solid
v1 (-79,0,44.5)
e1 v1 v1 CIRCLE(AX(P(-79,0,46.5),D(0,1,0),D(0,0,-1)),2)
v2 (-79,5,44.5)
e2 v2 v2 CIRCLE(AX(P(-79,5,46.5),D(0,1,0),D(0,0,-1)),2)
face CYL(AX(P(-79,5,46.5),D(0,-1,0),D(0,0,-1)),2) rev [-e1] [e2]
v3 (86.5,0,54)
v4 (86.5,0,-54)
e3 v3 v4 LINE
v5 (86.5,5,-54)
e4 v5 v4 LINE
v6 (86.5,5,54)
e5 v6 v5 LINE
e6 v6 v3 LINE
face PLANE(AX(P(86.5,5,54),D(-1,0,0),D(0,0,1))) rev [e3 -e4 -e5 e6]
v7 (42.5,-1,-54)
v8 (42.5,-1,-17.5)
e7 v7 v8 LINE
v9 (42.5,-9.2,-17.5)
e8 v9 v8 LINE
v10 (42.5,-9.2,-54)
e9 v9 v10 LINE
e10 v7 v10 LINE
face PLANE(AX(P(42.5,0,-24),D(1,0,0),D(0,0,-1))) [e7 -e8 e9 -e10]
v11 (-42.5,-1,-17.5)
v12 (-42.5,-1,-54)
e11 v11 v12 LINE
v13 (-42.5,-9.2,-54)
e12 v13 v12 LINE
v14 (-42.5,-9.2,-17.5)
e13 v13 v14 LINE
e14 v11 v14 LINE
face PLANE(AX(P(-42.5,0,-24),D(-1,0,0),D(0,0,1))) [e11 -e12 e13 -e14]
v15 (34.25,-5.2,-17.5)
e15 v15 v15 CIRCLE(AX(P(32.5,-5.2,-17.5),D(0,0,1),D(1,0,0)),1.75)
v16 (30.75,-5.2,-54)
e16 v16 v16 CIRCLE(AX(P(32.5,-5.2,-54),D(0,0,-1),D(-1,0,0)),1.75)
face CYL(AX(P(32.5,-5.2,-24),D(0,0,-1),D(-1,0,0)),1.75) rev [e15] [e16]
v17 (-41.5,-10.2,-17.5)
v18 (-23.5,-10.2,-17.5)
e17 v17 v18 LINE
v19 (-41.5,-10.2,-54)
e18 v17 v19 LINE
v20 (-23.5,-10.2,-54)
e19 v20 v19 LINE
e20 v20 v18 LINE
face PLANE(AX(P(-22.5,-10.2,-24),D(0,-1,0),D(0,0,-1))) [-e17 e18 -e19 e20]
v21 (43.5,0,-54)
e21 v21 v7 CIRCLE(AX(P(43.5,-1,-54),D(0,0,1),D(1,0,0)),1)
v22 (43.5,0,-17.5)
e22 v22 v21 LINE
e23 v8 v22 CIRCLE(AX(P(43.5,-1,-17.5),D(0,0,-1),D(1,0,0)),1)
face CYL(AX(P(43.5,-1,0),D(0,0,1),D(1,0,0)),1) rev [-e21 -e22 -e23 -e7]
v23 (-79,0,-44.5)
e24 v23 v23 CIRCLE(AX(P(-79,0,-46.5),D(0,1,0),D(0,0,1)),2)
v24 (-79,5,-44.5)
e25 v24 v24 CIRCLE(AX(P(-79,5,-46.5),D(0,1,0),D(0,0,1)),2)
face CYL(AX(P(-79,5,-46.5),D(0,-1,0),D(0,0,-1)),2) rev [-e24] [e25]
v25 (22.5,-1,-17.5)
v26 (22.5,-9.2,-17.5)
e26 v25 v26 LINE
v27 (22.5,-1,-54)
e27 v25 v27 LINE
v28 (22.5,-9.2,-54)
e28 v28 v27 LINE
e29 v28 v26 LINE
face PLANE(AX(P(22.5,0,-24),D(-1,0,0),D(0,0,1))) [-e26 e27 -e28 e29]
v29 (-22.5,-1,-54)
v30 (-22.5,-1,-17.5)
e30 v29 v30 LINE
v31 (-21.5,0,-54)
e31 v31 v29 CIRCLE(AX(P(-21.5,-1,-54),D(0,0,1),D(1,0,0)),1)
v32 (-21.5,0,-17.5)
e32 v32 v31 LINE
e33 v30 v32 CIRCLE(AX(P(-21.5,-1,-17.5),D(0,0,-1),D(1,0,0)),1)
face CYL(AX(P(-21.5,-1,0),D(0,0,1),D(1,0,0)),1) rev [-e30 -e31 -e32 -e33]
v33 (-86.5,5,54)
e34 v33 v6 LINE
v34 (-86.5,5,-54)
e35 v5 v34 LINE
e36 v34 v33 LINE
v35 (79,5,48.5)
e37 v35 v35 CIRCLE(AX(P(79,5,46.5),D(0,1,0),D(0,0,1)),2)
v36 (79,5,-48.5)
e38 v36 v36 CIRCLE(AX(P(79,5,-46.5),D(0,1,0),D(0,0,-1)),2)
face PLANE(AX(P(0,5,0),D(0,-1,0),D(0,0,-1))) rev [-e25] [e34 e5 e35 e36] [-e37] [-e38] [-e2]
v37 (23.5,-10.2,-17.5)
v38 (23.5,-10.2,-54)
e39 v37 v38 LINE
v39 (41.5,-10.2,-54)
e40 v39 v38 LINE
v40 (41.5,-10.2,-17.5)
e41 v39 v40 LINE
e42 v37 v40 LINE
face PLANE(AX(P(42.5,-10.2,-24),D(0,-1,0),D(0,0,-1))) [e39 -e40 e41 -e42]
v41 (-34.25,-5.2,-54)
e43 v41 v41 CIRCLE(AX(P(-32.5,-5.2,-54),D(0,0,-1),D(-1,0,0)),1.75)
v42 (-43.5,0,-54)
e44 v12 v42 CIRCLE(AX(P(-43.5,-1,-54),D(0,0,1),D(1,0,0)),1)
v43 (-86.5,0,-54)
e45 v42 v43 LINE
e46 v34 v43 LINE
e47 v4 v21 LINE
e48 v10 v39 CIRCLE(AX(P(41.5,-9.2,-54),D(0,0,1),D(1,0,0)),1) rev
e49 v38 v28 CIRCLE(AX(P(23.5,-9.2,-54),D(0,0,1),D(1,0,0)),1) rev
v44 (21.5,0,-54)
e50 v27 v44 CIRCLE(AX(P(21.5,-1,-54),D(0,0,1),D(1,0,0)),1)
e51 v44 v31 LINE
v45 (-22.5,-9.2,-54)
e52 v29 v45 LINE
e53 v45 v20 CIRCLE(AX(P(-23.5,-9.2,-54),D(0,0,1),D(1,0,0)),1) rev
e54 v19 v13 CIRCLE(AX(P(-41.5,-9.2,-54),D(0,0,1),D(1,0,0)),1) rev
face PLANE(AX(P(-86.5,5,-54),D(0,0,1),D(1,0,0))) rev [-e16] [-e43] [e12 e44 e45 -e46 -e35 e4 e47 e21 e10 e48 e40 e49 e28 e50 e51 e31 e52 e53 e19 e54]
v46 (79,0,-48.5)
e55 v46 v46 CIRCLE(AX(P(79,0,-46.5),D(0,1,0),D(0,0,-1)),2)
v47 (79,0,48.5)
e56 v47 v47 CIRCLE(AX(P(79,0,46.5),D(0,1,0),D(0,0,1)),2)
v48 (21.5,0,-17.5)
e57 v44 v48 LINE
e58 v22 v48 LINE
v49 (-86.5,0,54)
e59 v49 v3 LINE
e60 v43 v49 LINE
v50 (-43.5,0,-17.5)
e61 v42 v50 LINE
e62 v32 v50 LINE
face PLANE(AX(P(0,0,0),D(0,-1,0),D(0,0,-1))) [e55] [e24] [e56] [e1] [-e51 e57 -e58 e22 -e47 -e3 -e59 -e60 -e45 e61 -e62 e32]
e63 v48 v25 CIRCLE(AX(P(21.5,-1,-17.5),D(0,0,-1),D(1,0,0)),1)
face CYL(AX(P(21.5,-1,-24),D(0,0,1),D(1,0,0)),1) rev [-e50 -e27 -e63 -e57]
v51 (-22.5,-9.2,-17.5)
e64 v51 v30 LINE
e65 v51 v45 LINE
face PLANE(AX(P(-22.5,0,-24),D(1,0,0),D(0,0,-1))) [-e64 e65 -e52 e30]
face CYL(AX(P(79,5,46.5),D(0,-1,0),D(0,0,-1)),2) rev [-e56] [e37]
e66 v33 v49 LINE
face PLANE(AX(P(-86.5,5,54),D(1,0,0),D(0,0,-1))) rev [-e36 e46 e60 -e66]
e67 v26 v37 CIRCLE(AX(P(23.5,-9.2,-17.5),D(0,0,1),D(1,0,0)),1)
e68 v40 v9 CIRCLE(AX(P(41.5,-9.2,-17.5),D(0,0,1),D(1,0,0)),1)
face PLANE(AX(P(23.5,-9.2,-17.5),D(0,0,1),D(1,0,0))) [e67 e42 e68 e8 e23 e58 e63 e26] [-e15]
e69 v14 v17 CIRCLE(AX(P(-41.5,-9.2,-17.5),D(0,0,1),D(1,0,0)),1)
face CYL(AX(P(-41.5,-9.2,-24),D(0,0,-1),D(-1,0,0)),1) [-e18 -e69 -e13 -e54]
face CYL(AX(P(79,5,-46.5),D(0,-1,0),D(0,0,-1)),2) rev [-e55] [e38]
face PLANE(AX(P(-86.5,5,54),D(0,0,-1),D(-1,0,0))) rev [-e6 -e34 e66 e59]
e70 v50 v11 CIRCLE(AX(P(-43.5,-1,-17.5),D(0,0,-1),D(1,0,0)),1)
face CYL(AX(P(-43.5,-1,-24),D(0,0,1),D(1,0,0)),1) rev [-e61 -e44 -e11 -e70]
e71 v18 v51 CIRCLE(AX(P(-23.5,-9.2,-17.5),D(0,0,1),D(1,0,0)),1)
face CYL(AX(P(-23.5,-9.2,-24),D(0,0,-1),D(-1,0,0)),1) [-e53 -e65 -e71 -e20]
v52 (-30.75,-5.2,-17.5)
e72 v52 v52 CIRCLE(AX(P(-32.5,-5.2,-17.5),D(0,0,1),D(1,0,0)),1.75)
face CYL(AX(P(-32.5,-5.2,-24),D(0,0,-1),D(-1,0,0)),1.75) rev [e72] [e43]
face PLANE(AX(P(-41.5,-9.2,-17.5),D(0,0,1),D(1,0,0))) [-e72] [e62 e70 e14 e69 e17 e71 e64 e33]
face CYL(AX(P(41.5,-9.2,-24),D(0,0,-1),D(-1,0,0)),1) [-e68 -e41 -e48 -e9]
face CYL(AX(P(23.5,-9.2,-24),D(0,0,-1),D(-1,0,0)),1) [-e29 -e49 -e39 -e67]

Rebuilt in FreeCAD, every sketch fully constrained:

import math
import FreeCAD as App
import Part
import Sketcher

V = App.Vector


def edges_at(feature, points):
    """Names of the edges that pass closest to the given points."""
    edges = feature.Shape.Edges
    near = lambda p: min(range(len(edges)), key=lambda i: edges[i].distToShape(Part.Vertex(*p))[0])
    return sorted({f"Edge{near(p) + 1}" for p in points})

doc = App.newDocument("Part")
body = doc.addObject("PartDesign::Body", "Body")

sketch1 = doc.addObject("Sketcher::SketchObject", "Sketch")
body.addObject(sketch1)
sketch1.AttachmentSupport = (doc.XZ_Plane, [""])
sketch1.MapMode = "FlatFace"
sketch1.addGeometry([
    Part.LineSegment(V(-86.5, -54, 0), V(-86.5, 54, 0)),
    Part.LineSegment(V(-86.5, 54, 0), V(86.5, 54, 0)),
    Part.LineSegment(V(86.5, 54, 0), V(86.5, -54, 0)),
    Part.LineSegment(V(86.5, -54, 0), V(-86.5, -54, 0)),
    Part.Circle(V(-79, 46.5, 0), V(0, 0, 1), 2),
    Part.Circle(V(79, 46.5, 0), V(0, 0, 1), 2),
    Part.Circle(V(-79, -46.5, 0), V(0, 0, 1), 2),
    Part.Circle(V(79, -46.5, 0), V(0, 0, 1), 2),
], False)
sketch1.addConstraint([
    Sketcher.Constraint("Coincident", 0, 2, 1, 1),
    Sketcher.Constraint("Coincident", 1, 2, 2, 1),
    Sketcher.Constraint("Coincident", 2, 2, 3, 1),
    Sketcher.Constraint("Coincident", 3, 2, 0, 1),
    Sketcher.Constraint("Vertical", 0),
    Sketcher.Constraint("Horizontal", 1),
    Sketcher.Constraint("Vertical", 2),
    Sketcher.Constraint("Horizontal", 3),
    Sketcher.Constraint("Equal", 4, 5),
    Sketcher.Constraint("Equal", 5, 6),
    Sketcher.Constraint("Equal", 6, 7),
    Sketcher.Constraint("Symmetric", 5, 3, 6, 3, -1, 1),
    Sketcher.Constraint("Symmetric", 4, 3, 7, 3, -1, 1),
    Sketcher.Constraint("Symmetric", 0, 2, 2, 2, -1, 1),
    Sketcher.Constraint("Symmetric", 4, 3, 5, 3, -2),
    Sketcher.Constraint("Diameter", 4, 4.0),
    Sketcher.Constraint("DistanceX", 1, 1, 1, 2, 173.0),
    Sketcher.Constraint("DistanceY", 0, 1, 0, 2, 108.0),
    Sketcher.Constraint("DistanceX", 4, 3, -1, 1, 79.0),
    Sketcher.Constraint("DistanceY", 6, 3, 4, 3, 93.0),
])
pad1 = doc.addObject("PartDesign::Pad", "Pad")
body.addObject(pad1)
pad1.Profile = sketch1
pad1.Length = 5
pad1.Reversed = True

sketch2 = doc.addObject("Sketcher::SketchObject", "Sketch001")
body.addObject(sketch2)
sketch2.AttachmentSupport = (doc.XY_Plane, [""])
sketch2.MapMode = "FlatFace"
sketch2.AttachmentOffset = App.Placement(V(0, 0, -54), App.Rotation())
sketch2.addGeometry([
    Part.LineSegment(V(42.5, 0, 0), V(42.5, -10.2, 0)),
    Part.LineSegment(V(42.5, -10.2, 0), V(22.5, -10.2, 0)),
    Part.LineSegment(V(22.5, -10.2, 0), V(22.5, 0, 0)),
    Part.LineSegment(V(22.5, 0, 0), V(42.5, 0, 0)),
    Part.Circle(V(32.5, -5.2, 0), V(0, 0, 1), 1.8),
    Part.LineSegment(V(-22.5, 0, 0), V(-22.5, -10.2, 0)),
    Part.LineSegment(V(-22.5, -10.2, 0), V(-42.5, -10.2, 0)),
    Part.LineSegment(V(-42.5, -10.2, 0), V(-42.5, 0, 0)),
    Part.LineSegment(V(-42.5, 0, 0), V(-22.5, 0, 0)),
    Part.Circle(V(-32.5, -5.2, 0), V(0, 0, 1), 1.8),
], False)
sketch2.addConstraint([
    Sketcher.Constraint("Coincident", 0, 2, 1, 1),
    Sketcher.Constraint("Coincident", 1, 2, 2, 1),
    Sketcher.Constraint("Coincident", 2, 2, 3, 1),
    Sketcher.Constraint("Coincident", 3, 2, 0, 1),
    Sketcher.Constraint("Coincident", 5, 2, 6, 1),
    Sketcher.Constraint("Coincident", 6, 2, 7, 1),
    Sketcher.Constraint("Coincident", 7, 2, 8, 1),
    Sketcher.Constraint("Coincident", 8, 2, 5, 1),
    Sketcher.Constraint("Vertical", 0),
    Sketcher.Constraint("Horizontal", 1),
    Sketcher.Constraint("Vertical", 2),
    Sketcher.Constraint("Horizontal", 3),
    Sketcher.Constraint("Vertical", 5),
    Sketcher.Constraint("Horizontal", 6),
    Sketcher.Constraint("Vertical", 7),
    Sketcher.Constraint("Horizontal", 8),
    Sketcher.Constraint("Equal", 4, 9),
    Sketcher.Constraint("Symmetric", 3, 2, 7, 2, -1, 1),
    Sketcher.Constraint("Symmetric", 4, 3, 9, 3, -2),
    Sketcher.Constraint("Symmetric", 1, 2, 5, 2, -2),
    Sketcher.Constraint("PointOnObject", 2, 2, -1),
    Sketcher.Constraint("Diameter", 4, 3.5),
    Sketcher.Constraint("DistanceX", 1, 2, 1, 1, 20.0),
    Sketcher.Constraint("DistanceY", 0, 2, 0, 1, 10.2),
    Sketcher.Constraint("DistanceX", 9, 3, 4, 3, 65.0),
    Sketcher.Constraint("DistanceX", 4, 3, 0, 2, 10.0),
    Sketcher.Constraint("DistanceY", 0, 2, 4, 3, 5.0),
])
pad2 = doc.addObject("PartDesign::Pad", "Pad001")
body.addObject(pad2)
pad2.Profile = sketch2
pad2.Length = 30
doc.recompute()

fillet = doc.addObject("PartDesign::Fillet", "Fillet")
body.addObject(fillet)
fillet.Base = (pad2, edges_at(pad2, [
    (42.5, -10.2, -39),
    (42.5, 0, -39),
    (22.5, 0, -39),
    (22.5, -10.2, -39),
    (-22.5, -10.2, -39),
    (-22.5, 0, -39),
    (-42.5, 0, -39),
    (-42.5, -10.2, -39),
]))
fillet.Radius = 1

sketch3 = doc.addObject("Sketcher::SketchObject", "Sketch002")
body.addObject(sketch3)
sketch3.AttachmentSupport = (doc.XY_Plane, [""])
sketch3.MapMode = "FlatFace"
sketch3.AttachmentOffset = App.Placement(V(0, 0, -17.5), App.Rotation())
sketch3.addGeometry([
    Part.LineSegment(V(23.5, -10.2, 0), V(41.5, -10.2, 0)),
    Part.ArcOfCircle(Part.Circle(V(41.5, -9.2, 0), V(0, 0, 1), 1), math.radians(-90), math.radians(0)),
    Part.LineSegment(V(42.5, -9.2, 0), V(42.5, -1, 0)),
    Part.ArcOfCircle(Part.Circle(V(43.5, -1, 0), V(0, 0, 1), 1), math.radians(90), math.radians(180)),
    Part.LineSegment(V(43.5, 0, 0), V(21.5, 0, 0)),
    Part.ArcOfCircle(Part.Circle(V(21.5, -1, 0), V(0, 0, 1), 1), math.radians(0), math.radians(90)),
    Part.LineSegment(V(22.5, -1, 0), V(22.5, -9.2, 0)),
    Part.ArcOfCircle(Part.Circle(V(23.5, -9.2, 0), V(0, 0, 1), 1), math.radians(-180), math.radians(-90)),
    Part.Circle(V(32.5, -5.2, 0), V(0, 0, 1), 1.8),
    Part.LineSegment(V(-41.5, -10.2, 0), V(-23.5, -10.2, 0)),
    Part.ArcOfCircle(Part.Circle(V(-23.5, -9.2, 0), V(0, 0, 1), 1), math.radians(-90), math.radians(0)),
    Part.LineSegment(V(-22.5, -9.2, 0), V(-22.5, -1, 0)),
    Part.ArcOfCircle(Part.Circle(V(-21.5, -1, 0), V(0, 0, 1), 1), math.radians(90), math.radians(180)),
    Part.LineSegment(V(-21.5, 0, 0), V(-43.5, 0, 0)),
    Part.ArcOfCircle(Part.Circle(V(-43.5, -1, 0), V(0, 0, 1), 1), math.radians(0), math.radians(90)),
    Part.LineSegment(V(-42.5, -1, 0), V(-42.5, -9.2, 0)),
    Part.ArcOfCircle(Part.Circle(V(-41.5, -9.2, 0), V(0, 0, 1), 1), math.radians(-180), math.radians(-90)),
    Part.Circle(V(-32.5, -5.2, 0), V(0, 0, 1), 1.8),
], False)
sketch3.addConstraint([
    Sketcher.Constraint("Tangent", 0, 2, 1, 1),
    Sketcher.Constraint("Tangent", 1, 2, 2, 1),
    Sketcher.Constraint("Tangent", 2, 2, 3, 2),
    Sketcher.Constraint("Tangent", 3, 1, 4, 1),
    Sketcher.Constraint("Tangent", 4, 2, 5, 2),
    Sketcher.Constraint("Tangent", 5, 1, 6, 1),
    Sketcher.Constraint("Tangent", 6, 2, 7, 1),
    Sketcher.Constraint("Tangent", 7, 2, 0, 1),
    Sketcher.Constraint("Tangent", 9, 2, 10, 1),
    Sketcher.Constraint("Tangent", 10, 2, 11, 1),
    Sketcher.Constraint("Tangent", 11, 2, 12, 2),
    Sketcher.Constraint("Tangent", 12, 1, 13, 1),
    Sketcher.Constraint("Tangent", 13, 2, 14, 2),
    Sketcher.Constraint("Tangent", 14, 1, 15, 1),
    Sketcher.Constraint("Tangent", 15, 2, 16, 1),
    Sketcher.Constraint("Tangent", 16, 2, 9, 1),
    Sketcher.Constraint("Horizontal", 0),
    Sketcher.Constraint("Vertical", 2),
    Sketcher.Constraint("Horizontal", 4),
    Sketcher.Constraint("Vertical", 6),
    Sketcher.Constraint("Horizontal", 9),
    Sketcher.Constraint("Vertical", 11),
    Sketcher.Constraint("Horizontal", 13),
    Sketcher.Constraint("Vertical", 15),
    Sketcher.Constraint("Equal", 1, 3),
    Sketcher.Constraint("Equal", 3, 5),
    Sketcher.Constraint("Equal", 5, 7),
    Sketcher.Constraint("Equal", 7, 10),
    Sketcher.Constraint("Equal", 10, 12),
    Sketcher.Constraint("Equal", 12, 14),
    Sketcher.Constraint("Equal", 14, 16),
    Sketcher.Constraint("Equal", 8, 17),
    Sketcher.Constraint("Symmetric", 4, 2, 12, 1, -1, 1),
    Sketcher.Constraint("Symmetric", 3, 3, 14, 3, -2),
    Sketcher.Constraint("Symmetric", 8, 3, 17, 3, -2),
    Sketcher.Constraint("Horizontal", 7, 3, 10, 3),
    Sketcher.Constraint("Radius", 1, 1.0),
    Sketcher.Constraint("Diameter", 8, 3.5),
    Sketcher.Constraint("DistanceX", 0, 1, 0, 2, 18.0),
    Sketcher.Constraint("DistanceY", 2, 1, 2, 2, 8.2),
    Sketcher.Constraint("DistanceX", 7, 3, 8, 3, 9.0),
    Sketcher.Constraint("DistanceY", 7, 3, 8, 3, 4.0),
    Sketcher.Constraint("DistanceX", 10, 3, 5, 3, 45.0),
])
pad3 = doc.addObject("PartDesign::Pad", "Pad002")
body.addObject(pad3)
pad3.Profile = sketch3
pad3.Length = 6.5
pad3.Reversed = True

doc.recompute()
